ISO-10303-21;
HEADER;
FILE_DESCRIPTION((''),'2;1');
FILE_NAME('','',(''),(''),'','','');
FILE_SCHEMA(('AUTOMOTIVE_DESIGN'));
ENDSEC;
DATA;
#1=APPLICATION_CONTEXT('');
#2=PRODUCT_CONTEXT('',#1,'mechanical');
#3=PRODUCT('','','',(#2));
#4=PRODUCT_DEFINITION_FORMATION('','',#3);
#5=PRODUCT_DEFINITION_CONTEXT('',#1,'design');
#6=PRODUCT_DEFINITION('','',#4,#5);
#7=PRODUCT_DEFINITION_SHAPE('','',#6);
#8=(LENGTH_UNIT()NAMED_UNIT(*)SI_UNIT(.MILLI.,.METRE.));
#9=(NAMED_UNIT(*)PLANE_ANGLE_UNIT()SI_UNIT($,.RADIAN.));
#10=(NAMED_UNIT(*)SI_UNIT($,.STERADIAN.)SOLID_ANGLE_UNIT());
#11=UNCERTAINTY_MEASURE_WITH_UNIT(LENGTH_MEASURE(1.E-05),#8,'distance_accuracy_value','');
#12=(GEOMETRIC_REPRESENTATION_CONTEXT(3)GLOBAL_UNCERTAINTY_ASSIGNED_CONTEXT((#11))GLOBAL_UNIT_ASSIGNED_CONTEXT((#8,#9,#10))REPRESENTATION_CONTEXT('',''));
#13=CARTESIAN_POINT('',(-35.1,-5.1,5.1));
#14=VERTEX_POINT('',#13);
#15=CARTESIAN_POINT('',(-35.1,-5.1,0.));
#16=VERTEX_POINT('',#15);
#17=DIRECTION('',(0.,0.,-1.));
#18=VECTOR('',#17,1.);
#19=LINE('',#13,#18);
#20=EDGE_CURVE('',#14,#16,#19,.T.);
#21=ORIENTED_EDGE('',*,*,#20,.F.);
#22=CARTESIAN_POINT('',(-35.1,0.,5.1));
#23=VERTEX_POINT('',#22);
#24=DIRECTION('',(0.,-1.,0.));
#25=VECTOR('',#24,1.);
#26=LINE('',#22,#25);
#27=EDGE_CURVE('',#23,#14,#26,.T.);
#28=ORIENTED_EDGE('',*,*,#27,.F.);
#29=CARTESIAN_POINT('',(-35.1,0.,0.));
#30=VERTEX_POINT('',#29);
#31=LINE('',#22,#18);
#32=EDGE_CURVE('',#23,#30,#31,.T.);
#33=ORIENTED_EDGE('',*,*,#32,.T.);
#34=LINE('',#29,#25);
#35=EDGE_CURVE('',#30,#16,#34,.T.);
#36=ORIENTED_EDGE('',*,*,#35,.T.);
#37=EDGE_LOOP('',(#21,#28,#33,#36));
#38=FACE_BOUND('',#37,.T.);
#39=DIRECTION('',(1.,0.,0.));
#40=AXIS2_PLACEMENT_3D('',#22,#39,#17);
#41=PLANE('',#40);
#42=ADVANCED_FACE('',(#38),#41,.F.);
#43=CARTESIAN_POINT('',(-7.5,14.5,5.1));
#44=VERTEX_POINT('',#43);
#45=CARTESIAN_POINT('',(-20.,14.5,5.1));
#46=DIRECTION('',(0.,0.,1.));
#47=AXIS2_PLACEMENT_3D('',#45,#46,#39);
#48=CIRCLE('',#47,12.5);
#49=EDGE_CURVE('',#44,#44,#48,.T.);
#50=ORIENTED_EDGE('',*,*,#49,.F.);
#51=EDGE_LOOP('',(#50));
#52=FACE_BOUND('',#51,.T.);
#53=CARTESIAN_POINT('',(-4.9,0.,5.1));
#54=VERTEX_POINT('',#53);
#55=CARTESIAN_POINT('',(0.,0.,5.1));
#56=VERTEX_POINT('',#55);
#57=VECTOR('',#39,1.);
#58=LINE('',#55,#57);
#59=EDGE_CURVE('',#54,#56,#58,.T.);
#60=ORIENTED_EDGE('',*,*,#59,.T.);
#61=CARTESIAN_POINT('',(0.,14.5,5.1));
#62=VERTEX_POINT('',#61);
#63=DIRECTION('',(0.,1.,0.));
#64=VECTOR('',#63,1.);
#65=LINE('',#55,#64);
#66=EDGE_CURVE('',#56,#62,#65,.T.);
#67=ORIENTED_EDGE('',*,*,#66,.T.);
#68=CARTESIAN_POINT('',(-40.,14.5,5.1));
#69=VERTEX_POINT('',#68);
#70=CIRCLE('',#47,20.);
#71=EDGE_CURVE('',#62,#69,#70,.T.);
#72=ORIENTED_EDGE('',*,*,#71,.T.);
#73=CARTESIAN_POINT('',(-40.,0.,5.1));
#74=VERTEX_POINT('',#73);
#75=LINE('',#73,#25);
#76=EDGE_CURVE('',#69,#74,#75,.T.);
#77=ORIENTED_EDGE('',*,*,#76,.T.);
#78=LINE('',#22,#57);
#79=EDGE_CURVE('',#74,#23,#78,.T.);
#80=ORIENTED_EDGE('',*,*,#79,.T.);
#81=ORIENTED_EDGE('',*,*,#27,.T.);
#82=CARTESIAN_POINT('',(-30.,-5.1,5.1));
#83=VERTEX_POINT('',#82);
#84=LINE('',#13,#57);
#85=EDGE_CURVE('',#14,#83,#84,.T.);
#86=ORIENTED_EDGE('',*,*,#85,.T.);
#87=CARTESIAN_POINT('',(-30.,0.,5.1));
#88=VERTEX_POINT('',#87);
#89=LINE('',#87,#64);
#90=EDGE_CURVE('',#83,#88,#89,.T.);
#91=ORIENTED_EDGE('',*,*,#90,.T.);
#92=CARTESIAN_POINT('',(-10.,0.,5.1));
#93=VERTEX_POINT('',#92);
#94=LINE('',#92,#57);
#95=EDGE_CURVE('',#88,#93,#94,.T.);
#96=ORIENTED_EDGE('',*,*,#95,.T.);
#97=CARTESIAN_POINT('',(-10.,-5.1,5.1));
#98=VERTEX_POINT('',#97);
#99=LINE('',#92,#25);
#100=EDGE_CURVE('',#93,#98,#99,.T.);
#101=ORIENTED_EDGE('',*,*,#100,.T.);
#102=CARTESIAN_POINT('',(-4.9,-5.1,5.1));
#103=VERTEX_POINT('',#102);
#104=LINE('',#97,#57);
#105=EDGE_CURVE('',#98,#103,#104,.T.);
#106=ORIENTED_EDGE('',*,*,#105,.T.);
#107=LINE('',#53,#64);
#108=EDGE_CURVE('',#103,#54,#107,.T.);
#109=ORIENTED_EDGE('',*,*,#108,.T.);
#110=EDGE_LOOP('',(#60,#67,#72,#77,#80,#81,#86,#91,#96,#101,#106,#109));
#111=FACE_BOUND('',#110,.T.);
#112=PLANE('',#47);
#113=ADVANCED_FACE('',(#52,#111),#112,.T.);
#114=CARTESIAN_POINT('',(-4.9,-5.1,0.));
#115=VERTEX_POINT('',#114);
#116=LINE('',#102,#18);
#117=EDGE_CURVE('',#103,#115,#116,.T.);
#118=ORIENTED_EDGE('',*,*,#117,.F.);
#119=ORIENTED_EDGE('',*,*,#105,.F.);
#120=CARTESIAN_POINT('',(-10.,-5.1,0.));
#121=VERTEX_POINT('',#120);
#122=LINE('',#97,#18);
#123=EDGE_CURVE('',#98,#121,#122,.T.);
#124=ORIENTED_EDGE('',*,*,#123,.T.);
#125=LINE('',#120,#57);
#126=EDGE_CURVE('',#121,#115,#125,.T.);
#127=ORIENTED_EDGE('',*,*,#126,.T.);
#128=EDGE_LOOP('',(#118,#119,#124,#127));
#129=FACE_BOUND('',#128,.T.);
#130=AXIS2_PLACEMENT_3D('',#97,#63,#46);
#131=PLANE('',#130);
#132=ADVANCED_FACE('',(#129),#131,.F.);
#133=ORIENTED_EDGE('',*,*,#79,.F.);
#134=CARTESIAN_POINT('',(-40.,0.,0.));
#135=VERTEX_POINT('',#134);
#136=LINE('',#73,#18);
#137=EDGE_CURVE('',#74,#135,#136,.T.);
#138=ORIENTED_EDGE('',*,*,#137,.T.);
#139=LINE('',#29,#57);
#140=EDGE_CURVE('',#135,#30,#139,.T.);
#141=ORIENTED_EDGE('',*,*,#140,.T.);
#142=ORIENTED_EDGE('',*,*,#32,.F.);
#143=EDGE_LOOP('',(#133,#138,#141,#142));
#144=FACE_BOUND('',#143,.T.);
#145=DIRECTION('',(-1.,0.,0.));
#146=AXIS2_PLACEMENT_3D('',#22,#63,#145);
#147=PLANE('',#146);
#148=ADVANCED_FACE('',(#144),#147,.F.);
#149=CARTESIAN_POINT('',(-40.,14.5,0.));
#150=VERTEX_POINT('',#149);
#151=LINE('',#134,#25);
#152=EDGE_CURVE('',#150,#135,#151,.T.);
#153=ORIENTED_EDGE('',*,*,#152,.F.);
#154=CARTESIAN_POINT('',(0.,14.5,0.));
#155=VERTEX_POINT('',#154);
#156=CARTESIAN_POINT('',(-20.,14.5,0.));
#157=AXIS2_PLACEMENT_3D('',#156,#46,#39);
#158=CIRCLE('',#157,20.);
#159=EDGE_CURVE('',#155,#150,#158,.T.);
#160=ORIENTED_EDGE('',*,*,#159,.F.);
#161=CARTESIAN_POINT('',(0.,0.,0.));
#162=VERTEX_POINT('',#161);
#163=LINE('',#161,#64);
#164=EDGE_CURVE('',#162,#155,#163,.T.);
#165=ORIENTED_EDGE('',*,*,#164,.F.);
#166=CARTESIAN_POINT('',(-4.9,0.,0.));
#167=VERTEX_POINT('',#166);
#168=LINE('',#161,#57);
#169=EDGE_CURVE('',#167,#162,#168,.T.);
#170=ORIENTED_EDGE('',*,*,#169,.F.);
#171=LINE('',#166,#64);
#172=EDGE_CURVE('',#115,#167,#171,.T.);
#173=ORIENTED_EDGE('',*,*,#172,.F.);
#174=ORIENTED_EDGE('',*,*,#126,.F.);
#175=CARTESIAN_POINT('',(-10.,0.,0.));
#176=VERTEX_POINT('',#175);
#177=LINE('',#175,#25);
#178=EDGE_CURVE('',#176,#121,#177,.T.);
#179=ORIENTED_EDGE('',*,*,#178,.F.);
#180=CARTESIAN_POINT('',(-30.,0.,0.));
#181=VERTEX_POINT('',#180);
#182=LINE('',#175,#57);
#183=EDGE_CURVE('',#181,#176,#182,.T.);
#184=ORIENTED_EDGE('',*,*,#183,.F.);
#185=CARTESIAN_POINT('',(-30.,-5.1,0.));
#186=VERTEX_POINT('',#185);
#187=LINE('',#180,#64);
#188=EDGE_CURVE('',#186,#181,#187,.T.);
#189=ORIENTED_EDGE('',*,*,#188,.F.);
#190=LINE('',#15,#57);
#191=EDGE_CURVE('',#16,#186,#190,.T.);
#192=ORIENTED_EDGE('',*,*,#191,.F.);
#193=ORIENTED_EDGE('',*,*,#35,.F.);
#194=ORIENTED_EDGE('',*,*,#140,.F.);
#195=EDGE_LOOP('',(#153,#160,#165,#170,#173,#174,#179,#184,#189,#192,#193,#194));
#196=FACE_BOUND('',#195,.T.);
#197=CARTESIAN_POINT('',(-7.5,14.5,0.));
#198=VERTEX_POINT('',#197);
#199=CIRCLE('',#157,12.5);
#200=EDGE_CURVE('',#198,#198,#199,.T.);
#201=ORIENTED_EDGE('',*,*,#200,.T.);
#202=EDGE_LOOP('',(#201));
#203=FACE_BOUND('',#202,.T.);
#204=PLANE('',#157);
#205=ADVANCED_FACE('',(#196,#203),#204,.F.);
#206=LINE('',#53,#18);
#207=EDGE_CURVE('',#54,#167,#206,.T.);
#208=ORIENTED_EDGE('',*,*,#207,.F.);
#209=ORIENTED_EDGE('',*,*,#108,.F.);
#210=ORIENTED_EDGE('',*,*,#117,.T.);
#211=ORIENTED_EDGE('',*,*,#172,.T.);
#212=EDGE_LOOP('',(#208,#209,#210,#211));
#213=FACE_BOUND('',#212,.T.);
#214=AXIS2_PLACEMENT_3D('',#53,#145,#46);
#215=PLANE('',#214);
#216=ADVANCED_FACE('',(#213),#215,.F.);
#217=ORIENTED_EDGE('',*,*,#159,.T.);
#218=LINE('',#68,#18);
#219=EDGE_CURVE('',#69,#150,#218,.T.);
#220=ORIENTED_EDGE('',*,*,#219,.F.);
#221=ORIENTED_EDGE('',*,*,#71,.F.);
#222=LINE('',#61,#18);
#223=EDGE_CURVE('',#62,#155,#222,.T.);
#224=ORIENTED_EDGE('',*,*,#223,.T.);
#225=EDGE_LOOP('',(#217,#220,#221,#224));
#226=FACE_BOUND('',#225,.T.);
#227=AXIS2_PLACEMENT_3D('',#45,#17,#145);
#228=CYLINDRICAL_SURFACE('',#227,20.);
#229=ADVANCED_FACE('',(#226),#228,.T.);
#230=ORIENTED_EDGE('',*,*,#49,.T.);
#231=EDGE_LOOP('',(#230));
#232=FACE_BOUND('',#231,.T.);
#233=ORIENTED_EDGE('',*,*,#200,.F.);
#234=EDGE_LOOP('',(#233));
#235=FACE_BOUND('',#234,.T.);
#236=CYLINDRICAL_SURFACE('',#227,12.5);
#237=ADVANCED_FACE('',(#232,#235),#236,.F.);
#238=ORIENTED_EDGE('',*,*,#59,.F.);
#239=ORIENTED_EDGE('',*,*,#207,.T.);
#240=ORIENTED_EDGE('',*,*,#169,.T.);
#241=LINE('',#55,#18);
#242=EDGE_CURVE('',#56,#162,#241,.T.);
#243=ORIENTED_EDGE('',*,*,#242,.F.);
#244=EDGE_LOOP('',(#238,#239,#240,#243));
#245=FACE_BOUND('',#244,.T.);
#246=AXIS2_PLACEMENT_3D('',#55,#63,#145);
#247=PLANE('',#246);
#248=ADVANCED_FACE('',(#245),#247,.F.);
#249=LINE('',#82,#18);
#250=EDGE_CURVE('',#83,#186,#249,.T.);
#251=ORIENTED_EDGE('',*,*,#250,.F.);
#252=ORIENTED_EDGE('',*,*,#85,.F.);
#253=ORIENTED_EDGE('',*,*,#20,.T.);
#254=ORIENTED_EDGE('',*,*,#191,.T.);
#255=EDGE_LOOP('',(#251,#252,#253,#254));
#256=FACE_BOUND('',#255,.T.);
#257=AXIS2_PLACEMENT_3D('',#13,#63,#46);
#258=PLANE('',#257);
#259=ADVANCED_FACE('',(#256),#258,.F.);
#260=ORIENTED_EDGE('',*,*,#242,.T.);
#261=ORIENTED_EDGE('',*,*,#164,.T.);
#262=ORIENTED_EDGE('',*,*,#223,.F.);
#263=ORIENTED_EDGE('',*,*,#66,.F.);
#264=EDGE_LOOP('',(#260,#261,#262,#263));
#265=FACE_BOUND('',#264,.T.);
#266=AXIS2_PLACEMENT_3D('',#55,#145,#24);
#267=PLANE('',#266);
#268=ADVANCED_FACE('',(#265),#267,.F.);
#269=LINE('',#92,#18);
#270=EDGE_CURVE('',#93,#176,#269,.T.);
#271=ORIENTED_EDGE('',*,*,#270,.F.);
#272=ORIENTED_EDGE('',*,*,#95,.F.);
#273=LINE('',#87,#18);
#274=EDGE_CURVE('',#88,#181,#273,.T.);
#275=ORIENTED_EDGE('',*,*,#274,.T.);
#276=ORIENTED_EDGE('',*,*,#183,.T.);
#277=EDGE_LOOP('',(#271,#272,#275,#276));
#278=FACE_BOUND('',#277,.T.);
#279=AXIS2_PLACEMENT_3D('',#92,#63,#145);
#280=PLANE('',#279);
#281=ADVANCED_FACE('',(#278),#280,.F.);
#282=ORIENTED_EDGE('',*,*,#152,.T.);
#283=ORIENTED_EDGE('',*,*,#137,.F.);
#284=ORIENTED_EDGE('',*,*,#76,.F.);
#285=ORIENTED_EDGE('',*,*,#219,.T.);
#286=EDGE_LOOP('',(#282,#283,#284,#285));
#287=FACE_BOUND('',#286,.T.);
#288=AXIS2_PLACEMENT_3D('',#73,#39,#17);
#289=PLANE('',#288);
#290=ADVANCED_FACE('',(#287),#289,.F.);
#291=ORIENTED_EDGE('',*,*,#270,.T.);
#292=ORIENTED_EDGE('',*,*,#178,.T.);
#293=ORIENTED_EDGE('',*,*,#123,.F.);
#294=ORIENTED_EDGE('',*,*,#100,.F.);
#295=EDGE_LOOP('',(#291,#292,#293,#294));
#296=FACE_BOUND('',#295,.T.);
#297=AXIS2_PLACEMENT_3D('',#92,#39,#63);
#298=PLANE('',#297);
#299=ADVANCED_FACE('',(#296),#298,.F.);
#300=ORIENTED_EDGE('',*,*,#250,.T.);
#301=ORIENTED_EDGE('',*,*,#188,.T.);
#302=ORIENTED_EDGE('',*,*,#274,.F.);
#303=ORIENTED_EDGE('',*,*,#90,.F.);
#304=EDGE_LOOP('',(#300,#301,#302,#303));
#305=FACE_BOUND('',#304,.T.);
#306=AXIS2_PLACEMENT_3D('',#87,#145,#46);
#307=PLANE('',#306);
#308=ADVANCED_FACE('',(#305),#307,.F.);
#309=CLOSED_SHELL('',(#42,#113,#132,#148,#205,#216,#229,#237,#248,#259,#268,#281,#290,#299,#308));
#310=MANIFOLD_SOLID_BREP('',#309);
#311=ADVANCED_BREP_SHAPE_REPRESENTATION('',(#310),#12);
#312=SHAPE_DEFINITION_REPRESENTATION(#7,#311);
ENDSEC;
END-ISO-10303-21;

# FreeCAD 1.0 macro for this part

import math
import FreeCAD as App
import Part
import Sketcher

doc = App.newDocument("Part")
body = doc.addObject("PartDesign::Body", "Body")

# Sketch on XY plane
sketch1 = doc.addObject("Sketcher::SketchObject", "Sketch")
body.addObject(sketch1)
sketch1.AttachmentSupport = (doc.XY_Plane, [""])
sketch1.MapMode = "FlatFace"
sketch1.addGeometry([
    Part.LineSegment(App.Vector(-4.9, 0, 0), App.Vector(0, 0, 0)),  # 0
    Part.LineSegment(App.Vector(0, 0, 0), App.Vector(0, 14.5, 0)),  # 1
    Part.ArcOfCircle(Part.Circle(App.Vector(-20, 14.5, 0), App.Vector(0, 0, 1), 20), math.radians(0), math.radians(180)),  # 2
    Part.LineSegment(App.Vector(-40, 14.5, 0), App.Vector(-40, 0, 0)),  # 3
    Part.LineSegment(App.Vector(-40, 0, 0), App.Vector(-35.1, 0, 0)),  # 4
    Part.LineSegment(App.Vector(-35.1, 0, 0), App.Vector(-35.1, -5.1, 0)),  # 5
    Part.LineSegment(App.Vector(-35.1, -5.1, 0), App.Vector(-30, -5.1, 0)),  # 6
    Part.LineSegment(App.Vector(-30, -5.1, 0), App.Vector(-30, 0, 0)),  # 7
    Part.LineSegment(App.Vector(-30, 0, 0), App.Vector(-10, 0, 0)),  # 8
    Part.LineSegment(App.Vector(-10, 0, 0), App.Vector(-10, -5.1, 0)),  # 9
    Part.LineSegment(App.Vector(-10, -5.1, 0), App.Vector(-4.9, -5.1, 0)),  # 10
    Part.LineSegment(App.Vector(-4.9, -5.1, 0), App.Vector(-4.9, 0, 0)),  # 11
    Part.Circle(App.Vector(-20, 14.5, 0), App.Vector(0, 0, 1), 12.5),  # 12
], False)
sketch1.addConstraint([
    Sketcher.Constraint("Coincident", 0, 2, 1, 1),
    Sketcher.Constraint("Tangent", 1, 2, 2, 1),
    Sketcher.Constraint("Tangent", 2, 2, 3, 1),
    Sketcher.Constraint("Coincident", 3, 2, 4, 1),
    Sketcher.Constraint("Coincident", 4, 2, 5, 1),
    Sketcher.Constraint("Coincident", 5, 2, 6, 1),
    Sketcher.Constraint("Coincident", 6, 2, 7, 1),
    Sketcher.Constraint("Coincident", 7, 2, 8, 1),
    Sketcher.Constraint("Coincident", 8, 2, 9, 1),
    Sketcher.Constraint("Coincident", 9, 2, 10, 1),
    Sketcher.Constraint("Coincident", 10, 2, 11, 1),
    Sketcher.Constraint("Coincident", 11, 2, 0, 1),
    Sketcher.Constraint("Horizontal", 0),
    Sketcher.Constraint("Vertical", 1),
    Sketcher.Constraint("Vertical", 3),
    Sketcher.Constraint("Horizontal", 4),
    Sketcher.Constraint("Vertical", 5),
    Sketcher.Constraint("Horizontal", 6),
    Sketcher.Constraint("Vertical", 7),
    Sketcher.Constraint("Horizontal", 8),
    Sketcher.Constraint("Vertical", 9),
    Sketcher.Constraint("Horizontal", 10),
    Sketcher.Constraint("Vertical", 11),
    Sketcher.Constraint("Coincident", 0, 2, -1, 1),
    Sketcher.Constraint("Coincident", 12, 3, 2, 3),
    Sketcher.Constraint("PointOnObject", 3, 2, -1),
    Sketcher.Constraint("PointOnObject", 7, 2, -1),
    Sketcher.Constraint("Horizontal", 6, 2, 9, 2),
    Sketcher.Constraint("Equal", 0, 4),
    Sketcher.Constraint("Equal", 6, 10),
    Sketcher.Constraint("Equal", 10, 5),
    Sketcher.Constraint("Diameter", 12, 25.0),
    Sketcher.Constraint("Radius", 2, 20.0),
    Sketcher.Constraint("DistanceX", 8, 1, 8, 2, 20.0),
    Sketcher.Constraint("DistanceX", 0, 1, 0, 2, 4.9),
    Sketcher.Constraint("DistanceY", 1, 1, 1, 2, 14.5),
])
pad1 = doc.addObject("PartDesign::Pad", "Pad")
body.addObject(pad1)
pad1.Profile = sketch1
pad1.Length = 5.1

doc.recompute()
